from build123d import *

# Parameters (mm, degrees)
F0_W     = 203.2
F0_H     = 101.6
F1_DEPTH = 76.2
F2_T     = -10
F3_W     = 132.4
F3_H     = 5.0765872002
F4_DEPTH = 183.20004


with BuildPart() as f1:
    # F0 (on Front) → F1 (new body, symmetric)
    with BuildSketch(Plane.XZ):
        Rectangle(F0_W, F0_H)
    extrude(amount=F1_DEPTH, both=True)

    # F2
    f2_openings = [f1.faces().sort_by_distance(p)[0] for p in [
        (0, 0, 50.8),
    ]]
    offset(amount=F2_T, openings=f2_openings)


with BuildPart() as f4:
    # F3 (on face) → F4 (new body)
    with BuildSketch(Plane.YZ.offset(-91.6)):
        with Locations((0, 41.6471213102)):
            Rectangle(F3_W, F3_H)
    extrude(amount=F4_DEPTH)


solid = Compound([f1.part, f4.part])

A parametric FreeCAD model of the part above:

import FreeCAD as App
import Part
import Sketcher
Q = App.Units.Quantity


def faces_at(feature, points):
    """Names of the faces that lie closest to the given points."""
    faces = feature.Shape.Faces
    near = lambda p: min(range(len(faces)), key=lambda i: faces[i].distToShape(Part.Vertex(*p))[0])
    return sorted({f"Face{near(p) + 1}" for p in points})

doc = App.newDocument("Part")
body = doc.addObject("PartDesign::Body", "Body")

# Sketch on XZ plane
sketch1 = doc.addObject("Sketcher::SketchObject", "Sketch")
body.addObject(sketch1)
sketch1.AttachmentSupport = (doc.XZ_Plane, [""])
sketch1.MapMode = "FlatFace"
sketch1.addGeometry([
    Part.LineSegment(App.Vector(-102, 51, 0), App.Vector(-102, -51, 0)),
    Part.LineSegment(App.Vector(-102, -51, 0), App.Vector(102, -51, 0)),
    Part.LineSegment(App.Vector(102, -51, 0), App.Vector(102, 51, 0)),
    Part.LineSegment(App.Vector(102, 51, 0), App.Vector(-102, 51, 0)),
], False)
sketch1.addConstraint([
    Sketcher.Constraint("Coincident", 0, 2, 1, 1),
    Sketcher.Constraint("Coincident", 1, 2, 2, 1),
    Sketcher.Constraint("Coincident", 2, 2, 3, 1),
    Sketcher.Constraint("Coincident", 3, 2, 0, 1),
    Sketcher.Constraint("Vertical", 0),
    Sketcher.Constraint("Horizontal", 1),
    Sketcher.Constraint("Vertical", 2),
    Sketcher.Constraint("Horizontal", 3),
    Sketcher.Constraint("Symmetric", 0, 2, 2, 2, -1, 1),
    Sketcher.Constraint("DistanceX", 1, 1, 1, 2, Q("8 in")),
    Sketcher.Constraint("DistanceY", 0, 2, 0, 1, Q("4 in")),
])
pad1 = doc.addObject("PartDesign::Pad", "Pad")
body.addObject(pad1)
pad1.Profile = sketch1
pad1.Length = Q("6 in")
pad1.Midplane = True
doc.recompute()

thickness = doc.addObject("PartDesign::Thickness", "Thickness")
body.addObject(thickness)
thickness.Base = (pad1, faces_at(pad1, [(0, 0, 50.8)]))
thickness.Value = 10
thickness.Reversed = True
thickness.Join = "Arc"
body2 = doc.addObject("PartDesign::Body", "Body001")

# Sketch on YZ plane
sketch2 = doc.addObject("Sketcher::SketchObject", "Sketch001")
body2.addObject(sketch2)
sketch2.AttachmentSupport = (doc.getObject("YZ_Plane001"), [""])
sketch2.MapMode = "FlatFace"
sketch2.AttachmentOffset = App.Placement(App.Vector(0, 0, -91.6), App.Rotation())
sketch2.addGeometry([
    Part.LineSegment(App.Vector(-66, 44, 0), App.Vector(-66, 39, 0)),
    Part.LineSegment(App.Vector(-66, 39, 0), App.Vector(66, 39, 0)),
    Part.LineSegment(App.Vector(66, 39, 0), App.Vector(66, 44, 0)),
    Part.LineSegment(App.Vector(66, 44, 0), App.Vector(-66, 44, 0)),
], False)
sketch2.addConstraint([
    Sketcher.Constraint("Coincident", 0, 2, 1, 1),
    Sketcher.Constraint("Coincident", 1, 2, 2, 1),
    Sketcher.Constraint("Coincident", 2, 2, 3, 1),
    Sketcher.Constraint("Coincident", 3, 2, 0, 1),
    Sketcher.Constraint("Vertical", 0),
    Sketcher.Constraint("Horizontal", 1),
    Sketcher.Constraint("Vertical", 2),
    Sketcher.Constraint("Horizontal", 3),
    Sketcher.Constraint("DistanceX", 1, 1, 1, 2, 132.4),
    Sketcher.Constraint("DistanceX", 0, 2, -1, 1, 66.2),
    Sketcher.Constraint("DistanceY", 0, 2, 0, 1, 5.076587),
    Sketcher.Constraint("DistanceY", -1, 1, 0, 2, 39.108828),
])
pad2 = doc.addObject("PartDesign::Pad", "Pad001")
body2.addObject(pad2)
pad2.Profile = sketch2
pad2.Length = Q("7.2126 in")

doc.recompute()
